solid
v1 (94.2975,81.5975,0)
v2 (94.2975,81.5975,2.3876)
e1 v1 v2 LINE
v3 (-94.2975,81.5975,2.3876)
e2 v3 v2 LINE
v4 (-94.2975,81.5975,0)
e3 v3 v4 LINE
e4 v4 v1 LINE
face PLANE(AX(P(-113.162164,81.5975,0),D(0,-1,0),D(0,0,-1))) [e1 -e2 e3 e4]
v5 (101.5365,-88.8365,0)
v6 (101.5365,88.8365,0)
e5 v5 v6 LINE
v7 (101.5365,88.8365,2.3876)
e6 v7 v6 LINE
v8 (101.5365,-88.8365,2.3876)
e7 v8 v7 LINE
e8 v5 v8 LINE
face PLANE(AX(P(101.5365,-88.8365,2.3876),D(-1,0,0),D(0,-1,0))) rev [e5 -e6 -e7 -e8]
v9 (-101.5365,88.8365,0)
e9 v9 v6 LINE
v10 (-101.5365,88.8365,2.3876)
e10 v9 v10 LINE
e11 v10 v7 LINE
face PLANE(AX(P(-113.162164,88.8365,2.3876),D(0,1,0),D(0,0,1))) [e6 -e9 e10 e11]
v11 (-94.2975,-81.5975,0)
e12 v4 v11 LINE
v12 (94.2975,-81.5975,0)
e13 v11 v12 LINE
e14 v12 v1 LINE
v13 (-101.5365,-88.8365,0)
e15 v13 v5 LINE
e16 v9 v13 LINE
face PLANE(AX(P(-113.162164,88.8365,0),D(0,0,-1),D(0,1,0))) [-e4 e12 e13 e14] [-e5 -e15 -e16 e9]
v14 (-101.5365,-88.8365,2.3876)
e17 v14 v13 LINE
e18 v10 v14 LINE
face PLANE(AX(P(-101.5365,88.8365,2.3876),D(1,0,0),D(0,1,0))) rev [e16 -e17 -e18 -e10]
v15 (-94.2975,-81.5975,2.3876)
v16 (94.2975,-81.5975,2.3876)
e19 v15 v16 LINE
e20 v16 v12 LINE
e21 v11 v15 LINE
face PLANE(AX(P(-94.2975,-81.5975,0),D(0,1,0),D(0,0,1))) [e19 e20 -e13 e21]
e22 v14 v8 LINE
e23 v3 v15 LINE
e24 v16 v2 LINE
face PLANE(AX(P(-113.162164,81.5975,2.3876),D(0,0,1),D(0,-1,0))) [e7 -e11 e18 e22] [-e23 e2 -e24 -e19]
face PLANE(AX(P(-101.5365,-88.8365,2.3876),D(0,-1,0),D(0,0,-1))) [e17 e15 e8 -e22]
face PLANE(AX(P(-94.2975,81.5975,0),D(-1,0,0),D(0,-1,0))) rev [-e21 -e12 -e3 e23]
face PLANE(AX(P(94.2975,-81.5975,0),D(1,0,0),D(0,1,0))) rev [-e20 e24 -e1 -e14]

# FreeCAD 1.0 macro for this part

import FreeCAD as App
import Part
import Sketcher
Q = App.Units.Quantity


def add_polygon(sketch, points):
    """Adds a closed chain of lines whose ends are joined by coincident constraints."""
    first, n = sketch.GeometryCount, len(points)
    for a, b in zip(points, points[1:] + points[:1]):
        sketch.addGeometry(Part.LineSegment(App.Vector(*a, 0), App.Vector(*b, 0)), False)
    for i in range(n):
        sketch.addConstraint(Sketcher.Constraint("Coincident", first + i, 2, first + (i + 1) % n, 1))

doc = App.newDocument("Part")
body = doc.addObject("PartDesign::Body", "Body")

sketch1 = body.newObject("Sketcher::SketchObject", "Sketch")
sketch1.AttachmentSupport = (doc.getObject("YZ_Plane"), [""])
sketch1.MapMode = "FlatFace"
add_polygon(sketch1, [(88.8, 2.4), (81.6, 2.4), (81.6, 0), (88.8, 0)])
sketch1.addConstraint([
    Sketcher.Constraint("Horizontal", 0),
    Sketcher.Constraint("Vertical", 1),
    Sketcher.Constraint("Horizontal", 2),
    Sketcher.Constraint("Vertical", 3),
    Sketcher.Constraint("PointOnObject", 1, 2, -1),
    Sketcher.Constraint("DistanceX", 0, 2, 0, 1, Q("0.285 in")),
    Sketcher.Constraint("DistanceY", 1, 2, 1, 1, Q("0.094 in")),
    Sketcher.Constraint("DistanceX", -1, 1, 0, 2, Q("3.2125 in")),
])

sketch2 = body.newObject("Sketcher::SketchObject", "Sketch001")
sketch2.AttachmentSupport = (doc.getObject("XY_Plane"), [""])
sketch2.MapMode = "FlatFace"
add_polygon(sketch2, [(-98, 85), (98, 85), (98, -85), (-98, -85)])
sketch2.addConstraint([
    Sketcher.Constraint("Horizontal", 0),
    Sketcher.Constraint("Vertical", 1),
    Sketcher.Constraint("Horizontal", 2),
    Sketcher.Constraint("Vertical", 3),
    Sketcher.Constraint("Symmetric", 0, 2, 2, 2, -1, 1),
    Sketcher.Constraint("DistanceX", 0, 1, 0, 2, Q("7.71 in")),
    Sketcher.Constraint("DistanceY", 1, 2, 1, 1, Q("6.71 in")),
])
doc.recompute()

additivepipe = body.newObject("PartDesign::AdditivePipe", "AdditivePipe")
additivepipe.Profile = sketch1
additivepipe.Spine = (sketch2, ["Edge1", "Edge2", "Edge3", "Edge4"])
additivepipe.Transition = "Right corner"

doc.recompute()
